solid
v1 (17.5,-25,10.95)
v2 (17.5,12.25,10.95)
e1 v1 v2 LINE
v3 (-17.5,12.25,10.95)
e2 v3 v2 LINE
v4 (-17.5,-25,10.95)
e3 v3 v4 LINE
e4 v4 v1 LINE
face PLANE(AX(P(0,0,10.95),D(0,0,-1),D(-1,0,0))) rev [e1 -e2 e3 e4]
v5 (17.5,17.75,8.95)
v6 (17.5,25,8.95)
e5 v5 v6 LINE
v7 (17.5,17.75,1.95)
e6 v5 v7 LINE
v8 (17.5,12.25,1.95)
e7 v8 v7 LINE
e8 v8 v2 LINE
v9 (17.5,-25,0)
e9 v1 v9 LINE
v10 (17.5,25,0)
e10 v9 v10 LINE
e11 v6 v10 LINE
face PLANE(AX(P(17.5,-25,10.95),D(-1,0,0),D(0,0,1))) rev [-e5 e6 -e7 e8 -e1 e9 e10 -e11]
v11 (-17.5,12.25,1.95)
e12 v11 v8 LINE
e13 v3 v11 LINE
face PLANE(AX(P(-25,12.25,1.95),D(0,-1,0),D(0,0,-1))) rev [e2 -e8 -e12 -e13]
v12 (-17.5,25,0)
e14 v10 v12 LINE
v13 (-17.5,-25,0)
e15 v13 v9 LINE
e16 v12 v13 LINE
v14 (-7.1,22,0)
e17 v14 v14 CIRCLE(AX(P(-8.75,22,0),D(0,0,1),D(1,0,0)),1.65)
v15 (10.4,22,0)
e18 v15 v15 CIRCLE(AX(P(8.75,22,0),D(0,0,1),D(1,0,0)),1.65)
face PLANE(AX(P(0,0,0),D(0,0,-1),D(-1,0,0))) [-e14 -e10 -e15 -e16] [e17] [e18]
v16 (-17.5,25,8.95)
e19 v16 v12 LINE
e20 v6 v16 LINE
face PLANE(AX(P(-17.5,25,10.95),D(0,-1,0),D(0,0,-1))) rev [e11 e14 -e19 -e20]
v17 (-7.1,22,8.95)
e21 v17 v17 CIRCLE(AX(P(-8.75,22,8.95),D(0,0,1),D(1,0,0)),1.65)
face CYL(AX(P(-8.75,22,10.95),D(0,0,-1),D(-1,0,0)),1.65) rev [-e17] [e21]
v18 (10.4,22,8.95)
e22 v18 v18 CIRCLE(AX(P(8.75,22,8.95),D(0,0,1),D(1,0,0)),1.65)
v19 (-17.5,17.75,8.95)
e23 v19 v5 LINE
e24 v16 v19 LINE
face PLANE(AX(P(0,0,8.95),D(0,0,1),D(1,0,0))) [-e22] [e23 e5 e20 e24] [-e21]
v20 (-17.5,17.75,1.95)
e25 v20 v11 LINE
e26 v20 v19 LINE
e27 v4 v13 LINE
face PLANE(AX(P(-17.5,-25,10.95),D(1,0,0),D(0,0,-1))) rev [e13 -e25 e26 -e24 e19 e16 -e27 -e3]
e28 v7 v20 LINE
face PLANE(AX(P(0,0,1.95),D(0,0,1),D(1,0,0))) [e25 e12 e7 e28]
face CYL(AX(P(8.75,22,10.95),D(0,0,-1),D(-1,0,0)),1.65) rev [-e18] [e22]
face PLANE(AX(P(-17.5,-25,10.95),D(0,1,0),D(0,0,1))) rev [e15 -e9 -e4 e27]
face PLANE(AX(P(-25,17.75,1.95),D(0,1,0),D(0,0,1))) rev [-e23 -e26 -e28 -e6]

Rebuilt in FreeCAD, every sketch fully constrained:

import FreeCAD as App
import Part
import Sketcher

V = App.Vector
Q = App.Units.Quantity


def add_polygon(sketch, points):
    """Adds a closed chain of lines whose ends are joined by coincident constraints."""
    first, n = sketch.GeometryCount, len(points)
    for a, b in zip(points, points[1:] + points[:1]):
        sketch.addGeometry(Part.LineSegment(App.Vector(*a, 0), App.Vector(*b, 0)), False)
    for i in range(n):
        sketch.addConstraint(Sketcher.Constraint("Coincident", first + i, 2, first + (i + 1) % n, 1))

doc = App.newDocument("Part")
params = doc.addObject("Spreadsheet::Sheet", "Params")
for row, (alias, value) in enumerate([
    ("sketch1_diameter", "3.3 mm"),
    ("sketch1_width", "35 mm"),
    ("sketch1_height", "50 mm"),
    ("pad1_length", "10.95 mm"),
    ("sketch2_width", "50 mm"),
    ("sketch2_height", "5.5 mm"),
    ("pocket1_length", "9 mm"),
    ("sketch3_width", "35 mm"),
    ("sketch3_height", "7.25 mm"),
    ("pocket2_length", "2 mm"),
], start=1):
    params.set(f"A{row}", alias)
    params.set(f"B{row}", "=" + value)
    params.setAlias(f"B{row}", alias)

body = doc.addObject("PartDesign::Body", "Body")

sketch1 = doc.addObject("Sketcher::SketchObject", "Sketch")
body.addObject(sketch1)
sketch1.AttachmentSupport = (doc.XY_Plane, [""])
sketch1.MapMode = "FlatFace"
add_polygon(sketch1, [(-17.5, 25), (-17.5, -25), (17.5, -25), (17.5, 25)])
sketch1.addGeometry(Part.Circle(V(-8.8, 22, 0), V(0, 0, 1), 1.6), False)
sketch1.addGeometry(Part.Circle(V(8.8, 22, 0), V(0, 0, 1), 1.6), False)
sketch1.addConstraint(Sketcher.Constraint("Vertical", 0))
sketch1.addConstraint(Sketcher.Constraint("Horizontal", 1))
sketch1.addConstraint(Sketcher.Constraint("Vertical", 2))
sketch1.addConstraint(Sketcher.Constraint("Horizontal", 3))
sketch1.addConstraint(Sketcher.Constraint("Equal", 4, 5))
sketch1.addConstraint(Sketcher.Constraint("Symmetric", 0, 2, 2, 2, -1, 1))
sketch1.addConstraint(Sketcher.Constraint("Symmetric", 4, 3, 5, 3, -2))
sketch1.addConstraint(Sketcher.Constraint("Diameter", 4, Q("3.3 mm")))
sketch1.addConstraint(Sketcher.Constraint("DistanceX", 1, 1, 1, 2, Q("35 mm")))
sketch1.addConstraint(Sketcher.Constraint("DistanceY", 0, 2, 0, 1, Q("50 mm")))
sketch1.addConstraint(Sketcher.Constraint("DistanceY", -1, 1, 4, 3, Q("22 mm")))
sketch1.addConstraint(Sketcher.Constraint("DistanceX", 4, 3, 5, 3, Q("17.5 mm")))
sketch1.setExpression("Constraints[11]", "Params.sketch1_diameter")
sketch1.setExpression("Constraints[12]", "Params.sketch1_width")
sketch1.setExpression("Constraints[13]", "Params.sketch1_height")
pad1 = doc.addObject("PartDesign::Pad", "Pad")
body.addObject(pad1)
pad1.Profile = sketch1
pad1.setExpression("Length", "Params.pad1_length")

sketch2 = doc.addObject("Sketcher::SketchObject", "Sketch001")
body.addObject(sketch2)
sketch2.AttachmentSupport = (doc.XY_Plane, [""])
sketch2.MapMode = "FlatFace"
sketch2.AttachmentOffset = App.Placement(V(0, 0, 10.95), App.Rotation())
add_polygon(sketch2, [(-25, 18), (-25, 12), (25, 12), (25, 18)])
sketch2.addConstraint(Sketcher.Constraint("Vertical", 0))
sketch2.addConstraint(Sketcher.Constraint("Horizontal", 1))
sketch2.addConstraint(Sketcher.Constraint("Vertical", 2))
sketch2.addConstraint(Sketcher.Constraint("Horizontal", 3))
sketch2.addConstraint(Sketcher.Constraint("DistanceX", 1, 1, 1, 2, Q("50 mm")))
sketch2.addConstraint(Sketcher.Constraint("DistanceY", 0, 2, 0, 1, Q("5.5 mm")))
sketch2.addConstraint(Sketcher.Constraint("DistanceX", 0, 2, -1, 1, Q("25 mm")))
sketch2.addConstraint(Sketcher.Constraint("DistanceY", -1, 1, 0, 2, Q("12.25 mm")))
sketch2.setExpression("Constraints[8]", "Params.sketch2_width")
sketch2.setExpression("Constraints[9]", "Params.sketch2_height")
pocket1 = doc.addObject("PartDesign::Pocket", "Pocket")
body.addObject(pocket1)
pocket1.Profile = sketch2
pocket1.setExpression("Length", "Params.pocket1_length")

sketch3 = doc.addObject("Sketcher::SketchObject", "Sketch002")
body.addObject(sketch3)
sketch3.AttachmentSupport = (doc.XY_Plane, [""])
sketch3.MapMode = "FlatFace"
sketch3.AttachmentOffset = App.Placement(V(0, 0, 10.95), App.Rotation())
add_polygon(sketch3, [(-18, 25), (-18, 18), (18, 18), (18, 25)])
sketch3.addConstraint(Sketcher.Constraint("Vertical", 0))
sketch3.addConstraint(Sketcher.Constraint("Horizontal", 1))
sketch3.addConstraint(Sketcher.Constraint("Vertical", 2))
sketch3.addConstraint(Sketcher.Constraint("Horizontal", 3))
sketch3.addConstraint(Sketcher.Constraint("DistanceX", 1, 1, 1, 2, Q("35 mm")))
sketch3.addConstraint(Sketcher.Constraint("DistanceY", -1, 1, 2, 2, Q("25 mm")))
sketch3.addConstraint(Sketcher.Constraint("DistanceY", 0, 2, 0, 1, Q("7.25 mm")))
sketch3.addConstraint(Sketcher.Constraint("DistanceX", 0, 2, -1, 1, Q("17.5 mm")))
sketch3.setExpression("Constraints[8]", "Params.sketch3_width")
sketch3.setExpression("Constraints[10]", "Params.sketch3_height")
pocket2 = doc.addObject("PartDesign::Pocket", "Pocket001")
body.addObject(pocket2)
pocket2.Profile = sketch3
pocket2.setExpression("Length", "Params.pocket2_length")

doc.recompute()
